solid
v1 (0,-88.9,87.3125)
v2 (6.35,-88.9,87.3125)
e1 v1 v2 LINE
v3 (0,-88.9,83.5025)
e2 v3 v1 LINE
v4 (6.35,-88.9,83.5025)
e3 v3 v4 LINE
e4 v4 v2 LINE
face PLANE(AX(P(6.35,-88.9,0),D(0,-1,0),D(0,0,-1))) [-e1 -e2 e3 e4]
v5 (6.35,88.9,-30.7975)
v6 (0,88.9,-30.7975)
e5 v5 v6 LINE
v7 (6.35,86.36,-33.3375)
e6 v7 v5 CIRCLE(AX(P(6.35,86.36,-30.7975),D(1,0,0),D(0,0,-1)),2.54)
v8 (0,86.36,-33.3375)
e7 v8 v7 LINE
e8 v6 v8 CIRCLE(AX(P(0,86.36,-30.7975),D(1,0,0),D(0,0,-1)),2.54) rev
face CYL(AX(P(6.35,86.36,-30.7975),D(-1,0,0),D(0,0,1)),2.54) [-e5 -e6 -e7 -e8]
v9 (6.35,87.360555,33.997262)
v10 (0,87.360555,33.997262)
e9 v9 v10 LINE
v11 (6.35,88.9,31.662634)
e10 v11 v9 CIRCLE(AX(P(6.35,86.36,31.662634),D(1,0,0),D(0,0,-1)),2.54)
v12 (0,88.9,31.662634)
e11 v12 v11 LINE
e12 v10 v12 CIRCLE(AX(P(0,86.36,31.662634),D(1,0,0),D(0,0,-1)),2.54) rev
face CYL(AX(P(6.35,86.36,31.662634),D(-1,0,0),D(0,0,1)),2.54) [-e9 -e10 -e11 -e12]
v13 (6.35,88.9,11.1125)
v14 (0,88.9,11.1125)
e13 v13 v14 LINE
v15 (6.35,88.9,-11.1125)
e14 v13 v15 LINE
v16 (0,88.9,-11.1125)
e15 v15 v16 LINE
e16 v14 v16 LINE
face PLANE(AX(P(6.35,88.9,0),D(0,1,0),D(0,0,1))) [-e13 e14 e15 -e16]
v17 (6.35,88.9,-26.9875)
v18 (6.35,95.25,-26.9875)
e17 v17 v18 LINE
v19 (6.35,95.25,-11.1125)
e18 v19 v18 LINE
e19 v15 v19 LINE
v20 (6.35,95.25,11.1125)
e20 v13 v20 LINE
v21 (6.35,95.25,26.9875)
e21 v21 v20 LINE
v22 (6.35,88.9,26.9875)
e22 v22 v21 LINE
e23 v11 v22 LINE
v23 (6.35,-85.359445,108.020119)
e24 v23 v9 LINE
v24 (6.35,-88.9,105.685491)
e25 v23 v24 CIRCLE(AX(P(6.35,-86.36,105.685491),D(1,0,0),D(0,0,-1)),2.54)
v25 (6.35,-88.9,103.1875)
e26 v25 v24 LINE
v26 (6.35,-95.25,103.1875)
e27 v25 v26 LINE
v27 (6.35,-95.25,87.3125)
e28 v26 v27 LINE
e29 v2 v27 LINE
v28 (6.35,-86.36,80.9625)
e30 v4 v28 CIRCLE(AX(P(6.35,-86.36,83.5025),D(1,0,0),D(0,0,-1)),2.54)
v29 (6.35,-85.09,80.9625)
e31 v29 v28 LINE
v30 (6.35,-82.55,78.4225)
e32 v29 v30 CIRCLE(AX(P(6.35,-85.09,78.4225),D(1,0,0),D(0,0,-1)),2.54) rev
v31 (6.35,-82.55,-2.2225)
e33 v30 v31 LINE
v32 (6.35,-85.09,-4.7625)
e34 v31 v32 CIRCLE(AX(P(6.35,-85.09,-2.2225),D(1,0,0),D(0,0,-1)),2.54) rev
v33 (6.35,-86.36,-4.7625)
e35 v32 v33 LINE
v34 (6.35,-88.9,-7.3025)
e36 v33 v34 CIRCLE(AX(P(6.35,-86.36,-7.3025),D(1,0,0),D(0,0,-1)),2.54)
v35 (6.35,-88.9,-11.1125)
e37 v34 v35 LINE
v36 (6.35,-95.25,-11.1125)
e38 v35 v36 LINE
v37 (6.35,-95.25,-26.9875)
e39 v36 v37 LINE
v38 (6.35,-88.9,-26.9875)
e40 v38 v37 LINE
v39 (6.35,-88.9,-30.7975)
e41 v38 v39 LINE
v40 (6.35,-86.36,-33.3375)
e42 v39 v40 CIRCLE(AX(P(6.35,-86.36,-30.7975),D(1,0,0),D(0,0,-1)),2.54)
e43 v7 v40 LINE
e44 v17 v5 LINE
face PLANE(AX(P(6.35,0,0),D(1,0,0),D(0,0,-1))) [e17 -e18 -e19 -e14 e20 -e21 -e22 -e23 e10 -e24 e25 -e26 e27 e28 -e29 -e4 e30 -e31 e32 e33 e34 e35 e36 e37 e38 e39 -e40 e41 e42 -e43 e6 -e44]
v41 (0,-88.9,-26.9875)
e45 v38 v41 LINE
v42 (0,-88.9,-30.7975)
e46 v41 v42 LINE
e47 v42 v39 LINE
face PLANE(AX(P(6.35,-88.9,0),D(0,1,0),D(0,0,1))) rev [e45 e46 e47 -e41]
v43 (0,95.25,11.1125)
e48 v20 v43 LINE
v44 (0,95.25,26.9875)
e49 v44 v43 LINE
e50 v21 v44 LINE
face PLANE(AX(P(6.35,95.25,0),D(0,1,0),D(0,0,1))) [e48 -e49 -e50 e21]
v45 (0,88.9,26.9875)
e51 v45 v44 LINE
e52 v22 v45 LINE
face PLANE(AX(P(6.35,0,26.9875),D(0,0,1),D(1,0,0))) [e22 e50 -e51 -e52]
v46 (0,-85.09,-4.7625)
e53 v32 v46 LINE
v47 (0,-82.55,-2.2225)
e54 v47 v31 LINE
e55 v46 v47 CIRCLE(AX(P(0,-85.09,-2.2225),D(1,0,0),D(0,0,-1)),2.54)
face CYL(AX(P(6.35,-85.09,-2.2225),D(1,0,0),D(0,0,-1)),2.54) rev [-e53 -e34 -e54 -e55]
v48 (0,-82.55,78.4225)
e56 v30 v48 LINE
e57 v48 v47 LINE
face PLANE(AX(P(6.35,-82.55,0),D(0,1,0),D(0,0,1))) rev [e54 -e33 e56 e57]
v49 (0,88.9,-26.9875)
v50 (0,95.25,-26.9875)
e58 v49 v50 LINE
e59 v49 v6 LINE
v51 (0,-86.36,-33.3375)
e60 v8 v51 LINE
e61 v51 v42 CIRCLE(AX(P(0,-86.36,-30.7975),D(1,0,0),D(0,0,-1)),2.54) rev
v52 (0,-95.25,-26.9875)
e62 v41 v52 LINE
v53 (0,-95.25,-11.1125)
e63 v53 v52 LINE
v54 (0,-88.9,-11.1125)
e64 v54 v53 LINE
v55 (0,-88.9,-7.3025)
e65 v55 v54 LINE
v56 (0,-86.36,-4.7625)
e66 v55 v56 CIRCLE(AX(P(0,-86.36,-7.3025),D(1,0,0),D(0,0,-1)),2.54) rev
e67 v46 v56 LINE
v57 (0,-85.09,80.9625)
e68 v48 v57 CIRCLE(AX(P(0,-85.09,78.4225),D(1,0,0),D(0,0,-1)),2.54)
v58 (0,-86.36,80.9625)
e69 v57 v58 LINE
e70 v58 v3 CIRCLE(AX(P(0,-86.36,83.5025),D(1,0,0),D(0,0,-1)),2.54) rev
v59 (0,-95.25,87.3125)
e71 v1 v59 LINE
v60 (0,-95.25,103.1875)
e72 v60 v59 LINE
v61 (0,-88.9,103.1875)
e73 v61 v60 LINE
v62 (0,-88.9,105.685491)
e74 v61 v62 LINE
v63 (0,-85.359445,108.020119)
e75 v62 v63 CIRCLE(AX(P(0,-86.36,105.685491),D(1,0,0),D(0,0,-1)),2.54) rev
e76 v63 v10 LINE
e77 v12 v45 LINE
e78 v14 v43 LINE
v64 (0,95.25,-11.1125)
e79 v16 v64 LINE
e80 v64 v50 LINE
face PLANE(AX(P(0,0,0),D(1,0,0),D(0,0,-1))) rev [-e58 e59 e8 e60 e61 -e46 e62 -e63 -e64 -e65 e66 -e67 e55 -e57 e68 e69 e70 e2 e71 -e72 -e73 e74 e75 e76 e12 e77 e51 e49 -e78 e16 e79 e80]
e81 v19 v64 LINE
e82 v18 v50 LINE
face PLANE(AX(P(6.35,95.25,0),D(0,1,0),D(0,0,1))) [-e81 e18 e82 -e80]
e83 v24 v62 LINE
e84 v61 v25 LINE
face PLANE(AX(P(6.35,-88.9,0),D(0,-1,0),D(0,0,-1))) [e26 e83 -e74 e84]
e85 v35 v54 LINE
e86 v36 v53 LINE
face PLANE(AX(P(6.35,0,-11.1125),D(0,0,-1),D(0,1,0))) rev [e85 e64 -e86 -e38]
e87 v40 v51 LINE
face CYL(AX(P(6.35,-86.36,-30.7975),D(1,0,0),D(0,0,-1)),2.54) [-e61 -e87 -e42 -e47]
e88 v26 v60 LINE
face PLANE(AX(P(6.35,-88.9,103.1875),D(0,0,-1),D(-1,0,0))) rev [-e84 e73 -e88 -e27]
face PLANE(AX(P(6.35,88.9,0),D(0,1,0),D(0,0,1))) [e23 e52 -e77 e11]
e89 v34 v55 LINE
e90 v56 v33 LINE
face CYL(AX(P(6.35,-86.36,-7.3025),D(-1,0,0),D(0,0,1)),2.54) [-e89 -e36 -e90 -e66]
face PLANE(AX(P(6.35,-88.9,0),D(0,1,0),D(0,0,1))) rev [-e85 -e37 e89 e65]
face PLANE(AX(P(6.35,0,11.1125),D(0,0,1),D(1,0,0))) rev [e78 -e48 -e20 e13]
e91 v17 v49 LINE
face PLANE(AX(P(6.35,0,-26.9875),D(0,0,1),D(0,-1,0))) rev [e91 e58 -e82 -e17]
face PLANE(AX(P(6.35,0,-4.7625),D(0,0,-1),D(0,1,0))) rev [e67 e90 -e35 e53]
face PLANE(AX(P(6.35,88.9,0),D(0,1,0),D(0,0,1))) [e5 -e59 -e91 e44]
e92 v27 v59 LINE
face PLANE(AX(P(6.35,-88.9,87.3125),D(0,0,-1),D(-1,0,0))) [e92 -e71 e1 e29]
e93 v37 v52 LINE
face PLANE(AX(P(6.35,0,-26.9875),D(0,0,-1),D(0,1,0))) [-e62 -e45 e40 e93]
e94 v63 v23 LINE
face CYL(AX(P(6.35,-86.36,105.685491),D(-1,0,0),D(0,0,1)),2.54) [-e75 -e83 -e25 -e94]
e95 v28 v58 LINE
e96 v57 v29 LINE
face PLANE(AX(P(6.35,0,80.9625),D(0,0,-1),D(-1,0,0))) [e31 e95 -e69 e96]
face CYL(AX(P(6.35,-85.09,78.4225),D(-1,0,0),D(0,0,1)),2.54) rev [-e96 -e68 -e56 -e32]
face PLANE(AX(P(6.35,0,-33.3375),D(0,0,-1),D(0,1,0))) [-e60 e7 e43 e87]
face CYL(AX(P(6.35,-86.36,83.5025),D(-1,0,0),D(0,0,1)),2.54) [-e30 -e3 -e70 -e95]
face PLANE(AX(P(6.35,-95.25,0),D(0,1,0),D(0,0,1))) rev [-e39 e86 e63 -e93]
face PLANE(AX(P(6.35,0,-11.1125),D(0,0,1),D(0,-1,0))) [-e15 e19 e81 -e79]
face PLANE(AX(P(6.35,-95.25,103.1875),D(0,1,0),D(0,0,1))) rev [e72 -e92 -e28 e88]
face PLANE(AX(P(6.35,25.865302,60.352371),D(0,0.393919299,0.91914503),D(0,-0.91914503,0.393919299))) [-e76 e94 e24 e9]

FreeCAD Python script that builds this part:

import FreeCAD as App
import Part
import Sketcher
from FreeCAD import Vector
Q = App.Units.Quantity


def edges_at(feature, points):
    """Names of the edges that pass closest to the given points."""
    edges = feature.Shape.Edges
    near = lambda p: min(range(len(edges)), key=lambda i: edges[i].distToShape(Part.Vertex(*p))[0])
    return sorted({f"Edge{near(p) + 1}" for p in points})


def add_polygon(sketch, points):
    """Adds a closed chain of lines whose ends are joined by coincident constraints."""
    first, n = sketch.GeometryCount, len(points)
    for a, b in zip(points, points[1:] + points[:1]):
        sketch.addGeometry(Part.LineSegment(App.Vector(*a, 0), App.Vector(*b, 0)), False)
    for i in range(n):
        sketch.addConstraint(Sketcher.Constraint("Coincident", first + i, 2, first + (i + 1) % n, 1))

doc = App.newDocument("Part")
params = doc.addObject("Spreadsheet::Sheet", "Params")
for row, (alias, value) in enumerate([
    ("sketch1_width", "7 in"),
    ("sketch1_width2", "0.25 in"),
    ("sketch1_height", "0.625 in"),
    ("sketch1_height2", "3.375 in"),
    ("pad1_length", "0.25 in"),
    ("fillet_radius", "0.1 in"),
], start=1):
    params.set(f"A{row}", alias)
    params.set(f"B{row}", "=" + value)
    params.setAlias(f"B{row}", alias)

body = doc.addObject("PartDesign::Body", "Body")

# Sketch on YZ plane
sketch1 = body.newObject("Sketcher::SketchObject", "Sketch")
sketch1.AttachmentSupport = (doc.getObject("YZ_Plane"), [""])
sketch1.MapMode = "FlatFace"
add_polygon(sketch1, [(88.9, 33.3375), (-88.9, 109.5375), (-88.9, 103.1875), (-95.25, 103.1875), (-95.25, 87.3125), (-88.9, 87.3125), (-88.9, 80.9625), (-82.55, 80.9625), (-82.55, -4.7625), (-88.9, -4.7625), (-88.9, -11.1125), (-95.25, -11.1125), (-95.25, -26.9875), (-88.9, -26.9875), (-88.9, -33.3375), (88.9, -33.3375), (88.9, -26.9875), (95.25, -26.9875), (95.25, -11.1125), (88.9, -11.1125), (88.9, 11.1125), (95.25, 11.1125), (95.25, 26.9875), (88.9, 26.9875)])  # lines 0-23
sketch1.addConstraint([
    Sketcher.Constraint("Vertical", 1),
    Sketcher.Constraint("Horizontal", 2),
    Sketcher.Constraint("Vertical", 3),
    Sketcher.Constraint("Horizontal", 4),
    Sketcher.Constraint("Vertical", 5),
    Sketcher.Constraint("Horizontal", 6),
    Sketcher.Constraint("Vertical", 7),
    Sketcher.Constraint("Horizontal", 8),
    Sketcher.Constraint("Vertical", 9),
    Sketcher.Constraint("Horizontal", 10),
    Sketcher.Constraint("Vertical", 11),
    Sketcher.Constraint("Horizontal", 12),
    Sketcher.Constraint("Vertical", 13),
    Sketcher.Constraint("Horizontal", 14),
    Sketcher.Constraint("Vertical", 15),
    Sketcher.Constraint("Horizontal", 16),
    Sketcher.Constraint("Vertical", 17),
    Sketcher.Constraint("Horizontal", 18),
    Sketcher.Constraint("Vertical", 19),
    Sketcher.Constraint("Horizontal", 20),
    Sketcher.Constraint("Vertical", 21),
    Sketcher.Constraint("Horizontal", 22),
    Sketcher.Constraint("Vertical", 23),
    Sketcher.Constraint("Symmetric", 9, 2, 19, 2, -1, 1),
    Sketcher.Constraint("Symmetric", 11, 2, 21, 2, -1, 1),
    Sketcher.Constraint("Symmetric", 13, 2, 23, 2, -1, 1),
    Sketcher.Constraint("Symmetric", 12, 2, 15, 2, -2),
    Sketcher.Constraint("Symmetric", 10, 2, 17, 2, -2),
    Sketcher.Constraint("Vertical", 1, 2, 4, 2),
    Sketcher.Constraint("Vertical", 5, 2, 8, 2),
    Sketcher.Constraint("Vertical", 3, 2, 10, 2),
    Sketcher.Constraint("Vertical", 9, 2, 12, 2),
    Sketcher.Constraint("Equal", 4, 6),
    Sketcher.Constraint("Equal", 22, 1),
    Sketcher.Constraint("Equal", 1, 5),
    Sketcher.Constraint("Equal", 5, 9),
    Sketcher.Constraint("Equal", 3, 11),
    Sketcher.Constraint("Equal", 9, 13),
    Sketcher.Constraint("DistanceX", 14, 1, 14, 2, Q("7 in")),
    Sketcher.Constraint("DistanceX", 2, 2, 2, 1, Q("0.25 in")),
    Sketcher.Constraint("DistanceY", 15, 2, 19, 2, Q("1.5 in")),
    Sketcher.Constraint("DistanceY", 3, 2, 3, 1, Q("0.625 in")),
    Sketcher.Constraint("DistanceY", 7, 2, 7, 1, Q("3.375 in")),
])
sketch1.setExpression("Constraints[62]", "Params.sketch1_width")
sketch1.setExpression("Constraints[63]", "Params.sketch1_width2")
sketch1.setExpression("Constraints[65]", "Params.sketch1_height")
sketch1.setExpression("Constraints[66]", "Params.sketch1_height2")
pad1 = body.newObject("PartDesign::Pad", "Pad")
pad1.Profile = sketch1
pad1.setExpression("Length", "Params.pad1_length")
doc.recompute()

fillet = body.newObject("PartDesign::Fillet", "Fillet")
fillet.Base = (pad1, edges_at(pad1, [
    (3.175, -82.55, 80.963),
    (3.175, -88.9, 80.963),
    (3.175, -88.9, 109.537),
    (3.175, 88.9, 33.337),
    (3.175, 88.9, -33.337),
    (3.175, -88.9, -33.337),
    (3.175, -88.9, -4.763),
    (3.175, -82.55, -4.763),
]))
fillet.setExpression("Radius", "Params.fillet_radius")

doc.recompute()
